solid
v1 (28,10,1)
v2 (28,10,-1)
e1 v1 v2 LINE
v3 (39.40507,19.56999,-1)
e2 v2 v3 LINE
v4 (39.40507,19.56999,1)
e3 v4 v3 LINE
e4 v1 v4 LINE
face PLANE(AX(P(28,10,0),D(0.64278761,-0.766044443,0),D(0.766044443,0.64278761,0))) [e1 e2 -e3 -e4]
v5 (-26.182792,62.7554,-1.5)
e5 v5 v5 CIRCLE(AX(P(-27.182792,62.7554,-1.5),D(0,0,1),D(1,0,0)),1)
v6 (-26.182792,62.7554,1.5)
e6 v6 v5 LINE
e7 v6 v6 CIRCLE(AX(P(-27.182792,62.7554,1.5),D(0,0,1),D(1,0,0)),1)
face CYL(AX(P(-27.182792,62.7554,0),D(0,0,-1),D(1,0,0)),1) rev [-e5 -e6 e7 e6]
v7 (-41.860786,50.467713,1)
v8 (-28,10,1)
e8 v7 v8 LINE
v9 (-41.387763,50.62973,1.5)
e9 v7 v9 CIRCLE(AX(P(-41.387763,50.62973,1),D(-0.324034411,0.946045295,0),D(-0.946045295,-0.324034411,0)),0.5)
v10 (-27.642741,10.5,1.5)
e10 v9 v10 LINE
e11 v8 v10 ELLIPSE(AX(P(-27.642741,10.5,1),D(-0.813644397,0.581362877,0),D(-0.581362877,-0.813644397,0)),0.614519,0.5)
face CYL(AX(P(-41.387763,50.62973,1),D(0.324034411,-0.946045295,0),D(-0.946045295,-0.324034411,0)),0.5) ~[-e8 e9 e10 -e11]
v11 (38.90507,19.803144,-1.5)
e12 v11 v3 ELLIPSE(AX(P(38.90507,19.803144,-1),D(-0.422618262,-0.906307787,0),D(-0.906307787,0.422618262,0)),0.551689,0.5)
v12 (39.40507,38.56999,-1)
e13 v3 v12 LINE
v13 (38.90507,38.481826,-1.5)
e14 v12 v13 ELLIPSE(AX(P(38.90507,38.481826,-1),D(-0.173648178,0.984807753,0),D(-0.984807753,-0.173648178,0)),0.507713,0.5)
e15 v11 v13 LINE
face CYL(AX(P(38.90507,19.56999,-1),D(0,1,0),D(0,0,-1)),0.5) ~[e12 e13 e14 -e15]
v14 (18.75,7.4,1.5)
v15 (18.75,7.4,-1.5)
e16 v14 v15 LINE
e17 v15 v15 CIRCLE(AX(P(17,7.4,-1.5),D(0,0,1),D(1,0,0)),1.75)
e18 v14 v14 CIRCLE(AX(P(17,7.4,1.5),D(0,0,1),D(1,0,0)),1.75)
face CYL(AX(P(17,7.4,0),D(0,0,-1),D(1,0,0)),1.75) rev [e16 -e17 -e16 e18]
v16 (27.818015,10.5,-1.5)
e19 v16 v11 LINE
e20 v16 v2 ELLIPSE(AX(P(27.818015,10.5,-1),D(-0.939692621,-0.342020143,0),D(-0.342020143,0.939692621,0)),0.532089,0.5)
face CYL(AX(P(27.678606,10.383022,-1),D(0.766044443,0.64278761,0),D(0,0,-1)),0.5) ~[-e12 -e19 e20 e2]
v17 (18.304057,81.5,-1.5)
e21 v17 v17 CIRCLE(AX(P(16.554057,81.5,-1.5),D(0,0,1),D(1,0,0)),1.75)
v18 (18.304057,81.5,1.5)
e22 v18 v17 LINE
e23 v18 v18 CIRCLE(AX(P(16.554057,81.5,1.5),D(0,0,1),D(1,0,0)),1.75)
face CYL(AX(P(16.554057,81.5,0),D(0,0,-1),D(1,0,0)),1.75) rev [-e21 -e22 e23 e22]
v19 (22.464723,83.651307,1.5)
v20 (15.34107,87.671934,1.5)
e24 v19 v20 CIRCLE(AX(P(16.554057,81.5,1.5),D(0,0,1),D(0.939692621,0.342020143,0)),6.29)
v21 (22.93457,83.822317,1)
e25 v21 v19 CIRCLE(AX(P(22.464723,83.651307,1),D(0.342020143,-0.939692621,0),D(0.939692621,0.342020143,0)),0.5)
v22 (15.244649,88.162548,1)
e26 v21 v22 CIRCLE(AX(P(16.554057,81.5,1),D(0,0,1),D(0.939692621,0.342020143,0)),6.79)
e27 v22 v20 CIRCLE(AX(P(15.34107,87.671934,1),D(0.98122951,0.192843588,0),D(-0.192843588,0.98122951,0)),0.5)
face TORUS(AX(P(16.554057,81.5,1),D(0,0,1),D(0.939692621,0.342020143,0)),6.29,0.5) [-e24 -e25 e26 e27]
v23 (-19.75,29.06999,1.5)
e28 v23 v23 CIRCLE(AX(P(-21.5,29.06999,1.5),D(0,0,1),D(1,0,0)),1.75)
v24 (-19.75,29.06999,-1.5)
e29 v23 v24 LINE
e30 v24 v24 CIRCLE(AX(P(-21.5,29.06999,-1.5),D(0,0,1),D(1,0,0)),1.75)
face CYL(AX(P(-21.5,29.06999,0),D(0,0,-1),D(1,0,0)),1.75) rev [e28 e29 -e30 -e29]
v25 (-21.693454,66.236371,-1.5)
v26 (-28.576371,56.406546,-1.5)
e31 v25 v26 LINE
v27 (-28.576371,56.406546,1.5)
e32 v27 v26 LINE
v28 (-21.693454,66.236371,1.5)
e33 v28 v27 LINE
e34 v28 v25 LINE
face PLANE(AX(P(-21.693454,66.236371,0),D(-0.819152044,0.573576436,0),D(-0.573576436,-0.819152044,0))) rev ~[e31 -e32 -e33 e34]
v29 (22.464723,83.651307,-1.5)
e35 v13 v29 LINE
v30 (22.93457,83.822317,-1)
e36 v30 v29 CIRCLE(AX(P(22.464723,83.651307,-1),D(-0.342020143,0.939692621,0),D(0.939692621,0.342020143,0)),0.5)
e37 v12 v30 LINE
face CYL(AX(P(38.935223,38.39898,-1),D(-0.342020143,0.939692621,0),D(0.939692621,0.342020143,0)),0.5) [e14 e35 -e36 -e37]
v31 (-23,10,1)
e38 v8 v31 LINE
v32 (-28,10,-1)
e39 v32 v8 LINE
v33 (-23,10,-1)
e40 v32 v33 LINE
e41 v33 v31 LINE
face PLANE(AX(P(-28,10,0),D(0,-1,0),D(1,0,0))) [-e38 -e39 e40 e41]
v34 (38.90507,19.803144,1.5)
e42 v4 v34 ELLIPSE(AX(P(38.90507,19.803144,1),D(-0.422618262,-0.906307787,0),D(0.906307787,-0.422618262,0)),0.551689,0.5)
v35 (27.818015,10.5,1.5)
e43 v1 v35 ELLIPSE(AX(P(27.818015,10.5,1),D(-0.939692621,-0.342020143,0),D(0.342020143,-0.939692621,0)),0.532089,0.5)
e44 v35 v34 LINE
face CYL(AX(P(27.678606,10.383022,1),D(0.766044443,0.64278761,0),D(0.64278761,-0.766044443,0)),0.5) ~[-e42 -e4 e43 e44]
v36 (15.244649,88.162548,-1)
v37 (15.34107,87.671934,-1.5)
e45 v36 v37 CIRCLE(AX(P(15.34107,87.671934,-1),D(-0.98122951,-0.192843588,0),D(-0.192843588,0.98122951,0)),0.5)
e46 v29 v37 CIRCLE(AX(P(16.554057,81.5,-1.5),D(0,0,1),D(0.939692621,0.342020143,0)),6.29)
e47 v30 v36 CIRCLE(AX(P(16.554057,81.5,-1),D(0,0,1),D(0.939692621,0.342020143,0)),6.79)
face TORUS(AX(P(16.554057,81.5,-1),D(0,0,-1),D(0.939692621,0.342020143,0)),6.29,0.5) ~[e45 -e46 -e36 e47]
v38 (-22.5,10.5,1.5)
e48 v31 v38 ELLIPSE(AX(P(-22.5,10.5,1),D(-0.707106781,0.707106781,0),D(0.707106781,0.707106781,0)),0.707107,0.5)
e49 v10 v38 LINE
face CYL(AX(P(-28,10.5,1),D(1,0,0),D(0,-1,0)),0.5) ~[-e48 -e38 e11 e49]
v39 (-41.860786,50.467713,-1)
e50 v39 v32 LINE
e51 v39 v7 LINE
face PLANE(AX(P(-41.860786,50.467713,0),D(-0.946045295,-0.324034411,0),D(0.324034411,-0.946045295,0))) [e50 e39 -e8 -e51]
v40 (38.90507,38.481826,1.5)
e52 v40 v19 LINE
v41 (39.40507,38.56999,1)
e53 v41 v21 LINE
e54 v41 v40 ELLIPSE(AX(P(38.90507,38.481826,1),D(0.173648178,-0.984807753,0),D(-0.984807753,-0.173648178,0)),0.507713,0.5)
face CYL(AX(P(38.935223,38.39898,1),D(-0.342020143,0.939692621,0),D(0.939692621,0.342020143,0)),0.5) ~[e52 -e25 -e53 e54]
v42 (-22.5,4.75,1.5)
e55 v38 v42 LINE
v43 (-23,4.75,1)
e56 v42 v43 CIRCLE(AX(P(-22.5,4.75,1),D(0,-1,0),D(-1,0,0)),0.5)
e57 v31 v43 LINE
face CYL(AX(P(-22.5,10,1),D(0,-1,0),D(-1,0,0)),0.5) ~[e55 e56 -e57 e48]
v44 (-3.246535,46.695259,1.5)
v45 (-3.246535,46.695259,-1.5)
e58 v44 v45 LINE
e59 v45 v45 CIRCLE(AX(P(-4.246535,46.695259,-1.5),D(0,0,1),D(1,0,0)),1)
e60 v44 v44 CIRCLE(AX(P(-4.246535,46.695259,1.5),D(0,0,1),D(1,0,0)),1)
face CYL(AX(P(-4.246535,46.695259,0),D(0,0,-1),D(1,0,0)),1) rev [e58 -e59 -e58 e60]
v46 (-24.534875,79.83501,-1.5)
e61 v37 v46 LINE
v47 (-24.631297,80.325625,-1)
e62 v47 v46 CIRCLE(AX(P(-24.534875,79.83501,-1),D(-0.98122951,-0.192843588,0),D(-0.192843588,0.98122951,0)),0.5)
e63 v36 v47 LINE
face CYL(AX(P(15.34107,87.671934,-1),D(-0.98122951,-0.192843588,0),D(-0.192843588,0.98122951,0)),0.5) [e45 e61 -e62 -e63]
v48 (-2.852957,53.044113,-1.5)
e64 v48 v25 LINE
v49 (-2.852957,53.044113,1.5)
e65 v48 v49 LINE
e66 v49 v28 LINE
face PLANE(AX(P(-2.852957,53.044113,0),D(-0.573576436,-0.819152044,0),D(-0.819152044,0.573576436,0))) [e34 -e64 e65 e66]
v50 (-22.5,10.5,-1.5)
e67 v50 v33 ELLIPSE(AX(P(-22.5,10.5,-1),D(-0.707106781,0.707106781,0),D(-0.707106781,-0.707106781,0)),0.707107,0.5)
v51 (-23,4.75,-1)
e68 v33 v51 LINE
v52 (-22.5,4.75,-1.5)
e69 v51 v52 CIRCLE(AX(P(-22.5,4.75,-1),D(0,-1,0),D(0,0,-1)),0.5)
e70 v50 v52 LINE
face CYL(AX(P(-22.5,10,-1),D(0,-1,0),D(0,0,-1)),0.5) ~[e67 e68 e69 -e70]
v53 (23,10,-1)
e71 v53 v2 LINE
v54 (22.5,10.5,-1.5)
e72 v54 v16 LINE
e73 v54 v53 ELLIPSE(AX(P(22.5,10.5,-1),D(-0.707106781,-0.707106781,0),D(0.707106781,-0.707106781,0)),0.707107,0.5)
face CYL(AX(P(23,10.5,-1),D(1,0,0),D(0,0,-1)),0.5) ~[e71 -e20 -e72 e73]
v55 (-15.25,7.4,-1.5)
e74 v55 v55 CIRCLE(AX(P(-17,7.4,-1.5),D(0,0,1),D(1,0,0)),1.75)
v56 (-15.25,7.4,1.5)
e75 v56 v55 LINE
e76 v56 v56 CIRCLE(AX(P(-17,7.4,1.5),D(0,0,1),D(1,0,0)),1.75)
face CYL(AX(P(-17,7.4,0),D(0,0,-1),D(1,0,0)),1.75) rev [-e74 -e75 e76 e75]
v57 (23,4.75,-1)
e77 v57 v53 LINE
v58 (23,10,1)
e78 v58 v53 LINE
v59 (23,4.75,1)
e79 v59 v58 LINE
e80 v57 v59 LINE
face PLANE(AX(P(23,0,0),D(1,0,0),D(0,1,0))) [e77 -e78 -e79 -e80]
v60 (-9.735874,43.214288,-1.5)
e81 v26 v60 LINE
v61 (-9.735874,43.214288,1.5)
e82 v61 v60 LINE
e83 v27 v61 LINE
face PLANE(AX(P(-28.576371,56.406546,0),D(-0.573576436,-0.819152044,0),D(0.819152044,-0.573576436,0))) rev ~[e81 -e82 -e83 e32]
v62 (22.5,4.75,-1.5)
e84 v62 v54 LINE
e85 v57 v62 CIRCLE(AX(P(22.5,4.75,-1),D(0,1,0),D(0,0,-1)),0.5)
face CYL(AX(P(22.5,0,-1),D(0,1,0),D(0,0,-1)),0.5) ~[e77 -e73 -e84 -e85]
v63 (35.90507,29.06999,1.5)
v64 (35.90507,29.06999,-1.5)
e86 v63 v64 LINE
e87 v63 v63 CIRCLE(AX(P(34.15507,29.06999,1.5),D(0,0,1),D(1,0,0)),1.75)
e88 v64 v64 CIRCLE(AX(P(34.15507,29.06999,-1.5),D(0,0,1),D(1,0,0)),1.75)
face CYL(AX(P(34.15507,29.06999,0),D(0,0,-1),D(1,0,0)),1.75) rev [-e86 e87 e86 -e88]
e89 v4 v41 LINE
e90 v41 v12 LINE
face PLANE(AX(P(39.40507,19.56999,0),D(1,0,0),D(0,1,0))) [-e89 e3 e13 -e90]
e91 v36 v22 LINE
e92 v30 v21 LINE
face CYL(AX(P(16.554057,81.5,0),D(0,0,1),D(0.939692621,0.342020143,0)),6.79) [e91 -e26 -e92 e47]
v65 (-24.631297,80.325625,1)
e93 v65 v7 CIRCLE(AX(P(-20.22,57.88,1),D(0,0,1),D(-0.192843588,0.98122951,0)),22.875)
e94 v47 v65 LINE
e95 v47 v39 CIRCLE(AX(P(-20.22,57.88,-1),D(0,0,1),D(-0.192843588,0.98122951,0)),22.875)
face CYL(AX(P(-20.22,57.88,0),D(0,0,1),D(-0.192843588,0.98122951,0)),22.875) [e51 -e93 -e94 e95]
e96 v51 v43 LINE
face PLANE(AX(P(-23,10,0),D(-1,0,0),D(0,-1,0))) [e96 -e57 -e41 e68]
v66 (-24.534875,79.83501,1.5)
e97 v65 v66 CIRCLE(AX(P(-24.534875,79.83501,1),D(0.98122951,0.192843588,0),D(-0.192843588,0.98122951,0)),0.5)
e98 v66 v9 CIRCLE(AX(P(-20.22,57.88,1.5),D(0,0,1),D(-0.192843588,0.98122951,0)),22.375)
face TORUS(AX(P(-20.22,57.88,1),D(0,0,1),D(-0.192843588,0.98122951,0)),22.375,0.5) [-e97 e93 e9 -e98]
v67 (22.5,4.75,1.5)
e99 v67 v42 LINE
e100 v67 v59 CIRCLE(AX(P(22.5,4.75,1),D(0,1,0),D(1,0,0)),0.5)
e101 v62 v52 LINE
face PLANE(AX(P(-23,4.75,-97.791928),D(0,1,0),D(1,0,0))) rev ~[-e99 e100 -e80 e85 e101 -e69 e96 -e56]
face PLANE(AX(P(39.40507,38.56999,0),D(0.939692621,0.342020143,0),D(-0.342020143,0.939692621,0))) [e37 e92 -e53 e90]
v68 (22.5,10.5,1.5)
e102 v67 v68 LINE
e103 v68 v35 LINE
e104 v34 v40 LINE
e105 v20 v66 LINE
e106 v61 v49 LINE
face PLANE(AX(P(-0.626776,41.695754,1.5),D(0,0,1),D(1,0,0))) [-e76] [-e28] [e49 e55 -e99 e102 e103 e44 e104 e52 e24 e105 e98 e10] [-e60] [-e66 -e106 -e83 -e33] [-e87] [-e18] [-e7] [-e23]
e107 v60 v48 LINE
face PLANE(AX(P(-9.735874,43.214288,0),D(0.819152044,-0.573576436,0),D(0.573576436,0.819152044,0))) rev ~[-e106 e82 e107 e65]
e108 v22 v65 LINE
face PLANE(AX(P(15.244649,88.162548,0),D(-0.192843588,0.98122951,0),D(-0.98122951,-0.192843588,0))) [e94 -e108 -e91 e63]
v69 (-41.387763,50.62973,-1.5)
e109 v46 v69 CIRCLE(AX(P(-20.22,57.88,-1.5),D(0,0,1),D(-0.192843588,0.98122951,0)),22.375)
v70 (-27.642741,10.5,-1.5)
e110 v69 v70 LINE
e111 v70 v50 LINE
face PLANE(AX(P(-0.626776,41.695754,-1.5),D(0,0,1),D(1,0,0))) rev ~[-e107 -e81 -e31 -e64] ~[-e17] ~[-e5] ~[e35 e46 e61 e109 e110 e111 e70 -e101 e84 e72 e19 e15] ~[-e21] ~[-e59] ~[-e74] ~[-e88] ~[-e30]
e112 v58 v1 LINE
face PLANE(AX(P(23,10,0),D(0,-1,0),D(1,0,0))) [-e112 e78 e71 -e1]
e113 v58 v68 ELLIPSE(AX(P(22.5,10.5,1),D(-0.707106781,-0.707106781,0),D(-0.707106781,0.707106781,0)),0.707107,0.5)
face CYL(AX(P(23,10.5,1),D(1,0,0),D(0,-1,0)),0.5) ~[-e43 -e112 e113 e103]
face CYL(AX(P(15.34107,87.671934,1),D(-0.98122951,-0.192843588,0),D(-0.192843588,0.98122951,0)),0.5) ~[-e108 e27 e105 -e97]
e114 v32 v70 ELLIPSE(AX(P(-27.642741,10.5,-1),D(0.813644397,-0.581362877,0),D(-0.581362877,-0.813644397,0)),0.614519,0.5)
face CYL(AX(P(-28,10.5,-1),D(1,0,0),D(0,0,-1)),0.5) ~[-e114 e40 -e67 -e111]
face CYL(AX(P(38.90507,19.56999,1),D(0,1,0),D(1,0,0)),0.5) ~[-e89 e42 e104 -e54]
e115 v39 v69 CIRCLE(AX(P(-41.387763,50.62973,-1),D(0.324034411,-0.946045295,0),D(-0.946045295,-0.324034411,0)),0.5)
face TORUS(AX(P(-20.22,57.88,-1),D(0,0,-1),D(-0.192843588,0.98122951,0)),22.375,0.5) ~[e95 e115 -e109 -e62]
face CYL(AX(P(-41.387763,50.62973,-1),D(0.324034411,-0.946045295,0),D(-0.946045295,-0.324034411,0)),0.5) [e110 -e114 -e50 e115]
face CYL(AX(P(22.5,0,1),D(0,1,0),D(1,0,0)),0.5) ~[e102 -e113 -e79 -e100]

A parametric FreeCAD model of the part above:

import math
import FreeCAD as App
import Part
import Sketcher

V = App.Vector
Q = App.Units.Quantity


def edges_at(feature, points):
    """Names of the edges that pass closest to the given points."""
    edges = feature.Shape.Edges
    near = lambda p: min(range(len(edges)), key=lambda i: edges[i].distToShape(Part.Vertex(*p))[0])
    return sorted({f"Edge{near(p) + 1}" for p in points})

doc = App.newDocument("Part")
body = doc.addObject("PartDesign::Body", "Body")

sketch1 = body.newObject("Sketcher::SketchObject", "Sketch")
sketch1.AttachmentSupport = (doc.getObject("XY_Plane"), [""])
sketch1.MapMode = "FlatFace"
sketch1.addGeometry(Part.LineSegment(V(39.40507, 38.56999, 0), V(22.93457, 83.822317, 0)), False)
sketch1.addGeometry(Part.ArcOfCircle(Part.Circle(V(16.554057, 81.5, 0), V(0, 0, 1), 6.79), math.radians(20), math.radians(101.118779)), False)
sketch1.addGeometry(Part.LineSegment(V(15.244649, 88.162548, 0), V(-24.631297, 80.325625, 0)), False)
sketch1.addGeometry(Part.ArcOfCircle(Part.Circle(V(-20.22, 57.88, 0), V(0, 0, 1), 22.875), math.radians(101.118779), math.radians(198.907085)), False)
sketch1.addGeometry(Part.LineSegment(V(-41.860786, 50.467713, 0), V(-28, 10, 0)), False)
sketch1.addGeometry(Part.LineSegment(V(-28, 10, 0), V(-23, 10, 0)), False)
sketch1.addGeometry(Part.LineSegment(V(-23, 10, 0), V(-23, 0, 0)), False)
sketch1.addGeometry(Part.LineSegment(V(-23, 0, 0), V(23, 0, 0)), False)
sketch1.addGeometry(Part.LineSegment(V(23, 0, 0), V(23, 10, 0)), False)
sketch1.addGeometry(Part.LineSegment(V(23, 10, 0), V(28, 10, 0)), False)
sketch1.addGeometry(Part.LineSegment(V(28, 10, 0), V(39.40507, 19.56999, 0)), False)
sketch1.addGeometry(Part.LineSegment(V(39.40507, 19.56999, 0), V(39.40507, 38.56999, 0)), False)
sketch1.addGeometry(Part.Circle(V(-17, 7.4, 0), V(0, 0, 1), 1.75), False)
sketch1.addGeometry(Part.Circle(V(-21.5, 29.06999, 0), V(0, 0, 1), 1.75), False)
sketch1.addGeometry(Part.Circle(V(17, 7.4, 0), V(0, 0, 1), 1.75), False)
sketch1.addGeometry(Part.Circle(V(34.15507, 29.06999, 0), V(0, 0, 1), 1.75), False)
sketch1.addGeometry(Part.Circle(V(-27.182792, 62.7554, 0), V(0, 0, 1), 1), False)
sketch1.addGeometry(Part.LineSegment(V(-28.576371, 56.406546, 0), V(-21.693454, 66.236371, 0)), False)
sketch1.addGeometry(Part.LineSegment(V(-21.693454, 66.236371, 0), V(-2.852957, 53.044113, 0)), False)
sketch1.addGeometry(Part.LineSegment(V(-2.852957, 53.044113, 0), V(-9.735874, 43.214288, 0)), False)
sketch1.addGeometry(Part.LineSegment(V(-9.735874, 43.214288, 0), V(-28.576371, 56.406546, 0)), False)
sketch1.addGeometry(Part.Circle(V(-4.246535, 46.695259, 0), V(0, 0, 1), 1), False)
sketch1.addGeometry(Part.Circle(V(16.554057, 81.5, 0), V(0, 0, 1), 1.75), False)
sketch1.addConstraint(Sketcher.Constraint("Tangent", 0, 2, 1, 1))
sketch1.addConstraint(Sketcher.Constraint("Tangent", 1, 2, 2, 1))
sketch1.addConstraint(Sketcher.Constraint("Tangent", 2, 2, 3, 1))
sketch1.addConstraint(Sketcher.Constraint("Tangent", 3, 2, 4, 1))
sketch1.addConstraint(Sketcher.Constraint("Coincident", 4, 2, 5, 1))
sketch1.addConstraint(Sketcher.Constraint("Coincident", 5, 2, 6, 1))
sketch1.addConstraint(Sketcher.Constraint("Coincident", 6, 2, 7, 1))
sketch1.addConstraint(Sketcher.Constraint("Coincident", 7, 2, 8, 1))
sketch1.addConstraint(Sketcher.Constraint("Coincident", 8, 2, 9, 1))
sketch1.addConstraint(Sketcher.Constraint("Coincident", 9, 2, 10, 1))
sketch1.addConstraint(Sketcher.Constraint("Coincident", 10, 2, 11, 1))
sketch1.addConstraint(Sketcher.Constraint("Coincident", 11, 2, 0, 1))
sketch1.addConstraint(Sketcher.Constraint("Coincident", 17, 2, 18, 1))
sketch1.addConstraint(Sketcher.Constraint("Coincident", 18, 2, 19, 1))
sketch1.addConstraint(Sketcher.Constraint("Coincident", 19, 2, 20, 1))
sketch1.addConstraint(Sketcher.Constraint("Coincident", 20, 2, 17, 1))
sketch1.addConstraint(Sketcher.Constraint("Horizontal", 5))
sketch1.addConstraint(Sketcher.Constraint("Vertical", 6))
sketch1.addConstraint(Sketcher.Constraint("Horizontal", 7))
sketch1.addConstraint(Sketcher.Constraint("Vertical", 8))
sketch1.addConstraint(Sketcher.Constraint("Horizontal", 9))
sketch1.addConstraint(Sketcher.Constraint("Vertical", 11))
sketch1.addConstraint(Sketcher.Constraint("Coincident", 22, 3, 1, 3))
sketch1.addConstraint(Sketcher.Constraint("Equal", 12, 13))
sketch1.addConstraint(Sketcher.Constraint("Equal", 13, 14))
sketch1.addConstraint(Sketcher.Constraint("Equal", 14, 15))
sketch1.addConstraint(Sketcher.Constraint("Equal", 16, 21))
sketch1.addConstraint(Sketcher.Constraint("Equal", 15, 22))
sketch1.addConstraint(Sketcher.Constraint("Symmetric", 6, 2, 7, 2, -1, 1))
sketch1.addConstraint(Sketcher.Constraint("Symmetric", 12, 3, 14, 3, -2))
sketch1.addConstraint(Sketcher.Constraint("Symmetric", 4, 2, 9, 2, -2))
sketch1.addConstraint(Sketcher.Constraint("Perpendicular", 17, 18))
sketch1.addConstraint(Sketcher.Constraint("Perpendicular", 18, 19))
sketch1.addConstraint(Sketcher.Constraint("Perpendicular", 19, 20))
sketch1.addConstraint(Sketcher.Constraint("Horizontal", 13, 3, 15, 3))
sketch1.addConstraint(Sketcher.Constraint("Diameter", 16, Q("2 mm")))
sketch1.addConstraint(Sketcher.Constraint("Diameter", 12, Q("3.5 mm")))
sketch1.addConstraint(Sketcher.Constraint("DistanceX", 5, 1, 5, 2, Q("5 mm")))
sketch1.addConstraint(Sketcher.Constraint("DistanceX", 7, 1, 7, 2, Q("46 mm")))
sketch1.addConstraint(Sketcher.Constraint("DistanceY", 6, 2, 6, 1, Q("10 mm")))
sketch1.addConstraint(Sketcher.Constraint("DistanceY", 11, 1, 11, 2, Q("19 mm")))
sketch1.addConstraint(Sketcher.Constraint("Angle", 0, Q("110 deg")))
sketch1.addConstraint(Sketcher.Constraint("Angle", 10, Q("40 deg")))
sketch1.addConstraint(Sketcher.Constraint("Angle", 17, Q("55 deg")))
sketch1.addConstraint(Sketcher.Constraint("Radius", 1, Q("6.79 mm")))
sketch1.addConstraint(Sketcher.Constraint("Distance", 17, Q("12 mm")))
sketch1.addConstraint(Sketcher.Constraint("Distance", 18, Q("23 mm")))
sketch1.addConstraint(Sketcher.Constraint("DistanceX", 12, 3, -1, 1, Q("17 mm")))
sketch1.addConstraint(Sketcher.Constraint("Radius", 3, Q("22.875 mm")))
sketch1.addConstraint(Sketcher.Constraint("DistanceY", -1, 1, 1, 3, Q("81.5 mm")))
sketch1.addConstraint(Sketcher.Constraint("DistanceY", -1, 1, 12, 3, Q("7.4 mm")))
sketch1.addConstraint(Sketcher.Constraint("DistanceX", 13, 3, -1, 1, Q("21.5 mm")))
sketch1.addConstraint(Sketcher.Constraint("DistanceY", 10, 2, 15, 3, Q("9.5 mm")))
sketch1.addConstraint(Sketcher.Constraint("DistanceX", 3, 3, -1, 1, Q("20.22 mm")))
sketch1.addConstraint(Sketcher.Constraint("DistanceY", -1, 1, 3, 3, Q("57.88 mm")))
sketch1.addConstraint(Sketcher.Constraint("DistanceX", 15, 3, 10, 2, Q("5.25 mm")))
sketch1.addConstraint(Sketcher.Constraint("DistanceY", -1, 1, 16, 3, Q("62.7554 mm")))
sketch1.addConstraint(Sketcher.Constraint("DistanceY", 13, 3, 19, 2, Q("14.144299 mm")))
sketch1.addConstraint(Sketcher.Constraint("Distance", 0, Q("48.156521 mm")))
sketch1.addConstraint(Sketcher.Constraint("DistanceY", -1, 1, 21, 3, Q("46.695259 mm")))
sketch1.addConstraint(Sketcher.Constraint("DistanceX", 20, 2, -1, 1, Q("28.576371 mm")))
sketch1.addConstraint(Sketcher.Constraint("DistanceX", 16, 3, 1, 3, Q("43.736849 mm")))
sketch1.addConstraint(Sketcher.Constraint("DistanceX", 21, 3, 1, 3, Q("20.800592 mm")))
pad1 = body.newObject("PartDesign::Pad", "Pad")
pad1.Profile = sketch1
pad1.Length = 3
pad1.Midplane = True
doc.recompute()

fillet = body.newObject("PartDesign::Fillet", "Fillet")
fillet.Base = (pad1, edges_at(pad1, [
    (-40.033, 69.313, 1.5),
    (-34.93, 30.234, 1.5),
    (-25.5, 10, 1.5),
    (-23, 5, 1.5),
    (0, 0, 1.5),
    (23, 5, 1.5),
    (25.5, 10, 1.5),
    (33.703, 14.785, 1.5),
    (39.405, 29.07, 1.5),
    (31.17, 61.196, 1.5),
    (19.891, 87.413, 1.5),
    (-4.693, 84.244, 1.5),
]))
fillet.Radius = 0.5
doc.recompute()

fillet2 = body.newObject("PartDesign::Fillet", "Fillet001")
fillet2.Base = (fillet, edges_at(fillet, [
    (31.17, 61.196, -1.5),
    (39.405, 29.07, -1.5),
    (33.703, 14.785, -1.5),
    (25.5, 10, -1.5),
    (23, 5, -1.5),
    (0, 0, -1.5),
    (-23, 5, -1.5),
    (-25.5, 10, -1.5),
    (-34.93, 30.234, -1.5),
    (-40.033, 69.313, -1.5),
    (-4.693, 84.244, -1.5),
    (19.891, 87.413, -1.5),
]))
fillet2.Radius = 0.5

sketch2 = body.newObject("Sketcher::SketchObject", "Sketch001")
sketch2.AttachmentSupport = (doc.getObject("XY_Plane"), [""])
sketch2.MapMode = "FlatFace"
sketch2.AttachmentOffset = App.Placement(V(0, 0, 1.5), App.Rotation())
sketch2.addGeometry(Part.LineSegment(V(-23, 4.75, 0), V(-23, 0, 0)), False)
sketch2.addGeometry(Part.LineSegment(V(-23, 0, 0), V(23, 0, 0)), False)
sketch2.addGeometry(Part.LineSegment(V(23, 0, 0), V(23, 4.75, 0)), False)
sketch2.addGeometry(Part.LineSegment(V(23, 4.75, 0), V(-23, 4.75, 0)), False)
sketch2.addConstraint(Sketcher.Constraint("Coincident", 0, 2, 1, 1))
sketch2.addConstraint(Sketcher.Constraint("Coincident", 1, 2, 2, 1))
sketch2.addConstraint(Sketcher.Constraint("Coincident", 2, 2, 3, 1))
sketch2.addConstraint(Sketcher.Constraint("Coincident", 3, 2, 0, 1))
sketch2.addConstraint(Sketcher.Constraint("Vertical", 0))
sketch2.addConstraint(Sketcher.Constraint("Horizontal", 1))
sketch2.addConstraint(Sketcher.Constraint("Vertical", 2))
sketch2.addConstraint(Sketcher.Constraint("Horizontal", 3))
sketch2.addConstraint(Sketcher.Constraint("Symmetric", 0, 2, 1, 2, -1, 1))
sketch2.addConstraint(Sketcher.Constraint("DistanceX", 1, 1, 1, 2, Q("46 mm")))
sketch2.addConstraint(Sketcher.Constraint("DistanceY", 0, 2, 0, 1, Q("4.75 mm")))
pocket1 = body.newObject("PartDesign::Pocket", "Pocket")
pocket1.Profile = sketch2
pocket1.Type = "ThroughAll"
pocket1.Midplane = True

doc.recompute()
